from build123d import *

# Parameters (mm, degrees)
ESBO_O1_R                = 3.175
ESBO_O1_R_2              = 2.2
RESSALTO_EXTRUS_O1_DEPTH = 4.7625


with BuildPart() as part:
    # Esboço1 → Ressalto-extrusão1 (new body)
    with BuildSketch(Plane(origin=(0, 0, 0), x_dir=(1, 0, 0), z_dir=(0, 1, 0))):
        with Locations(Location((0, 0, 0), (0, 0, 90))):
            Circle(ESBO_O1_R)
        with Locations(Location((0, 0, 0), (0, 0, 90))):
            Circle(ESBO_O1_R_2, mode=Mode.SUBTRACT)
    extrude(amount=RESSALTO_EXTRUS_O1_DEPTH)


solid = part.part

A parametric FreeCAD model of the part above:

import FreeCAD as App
import Part
import Sketcher
from FreeCAD import Vector
Q = App.Units.Quantity

doc = App.newDocument("Part")
body = doc.addObject("PartDesign::Body", "Body")

# Sketch on XZ plane
sketch1 = body.newObject("Sketcher::SketchObject", "Sketch")
sketch1.AttachmentSupport = (doc.getObject("XZ_Plane"), [""])
sketch1.MapMode = "FlatFace"
sketch1.addGeometry([
    Part.Circle(Vector(0, 0, 0), Vector(0, 0, 1), 3.175),
    Part.Circle(Vector(0, 0, 0), Vector(0, 0, 1), 2.2),
], False)
sketch1.addConstraint([
    Sketcher.Constraint("Coincident", 0, 3, -1, 1),
    Sketcher.Constraint("Coincident", 1, 3, -1, 1),
    Sketcher.Constraint("Diameter", 0, Q("0.25 in")),
    Sketcher.Constraint("Diameter", 1, 4.4),
])
pad1 = body.newObject("PartDesign::Pad", "Pad")
pad1.Profile = sketch1
pad1.Length = Q("0.1875 in")
pad1.Reversed = True

doc.recompute()
